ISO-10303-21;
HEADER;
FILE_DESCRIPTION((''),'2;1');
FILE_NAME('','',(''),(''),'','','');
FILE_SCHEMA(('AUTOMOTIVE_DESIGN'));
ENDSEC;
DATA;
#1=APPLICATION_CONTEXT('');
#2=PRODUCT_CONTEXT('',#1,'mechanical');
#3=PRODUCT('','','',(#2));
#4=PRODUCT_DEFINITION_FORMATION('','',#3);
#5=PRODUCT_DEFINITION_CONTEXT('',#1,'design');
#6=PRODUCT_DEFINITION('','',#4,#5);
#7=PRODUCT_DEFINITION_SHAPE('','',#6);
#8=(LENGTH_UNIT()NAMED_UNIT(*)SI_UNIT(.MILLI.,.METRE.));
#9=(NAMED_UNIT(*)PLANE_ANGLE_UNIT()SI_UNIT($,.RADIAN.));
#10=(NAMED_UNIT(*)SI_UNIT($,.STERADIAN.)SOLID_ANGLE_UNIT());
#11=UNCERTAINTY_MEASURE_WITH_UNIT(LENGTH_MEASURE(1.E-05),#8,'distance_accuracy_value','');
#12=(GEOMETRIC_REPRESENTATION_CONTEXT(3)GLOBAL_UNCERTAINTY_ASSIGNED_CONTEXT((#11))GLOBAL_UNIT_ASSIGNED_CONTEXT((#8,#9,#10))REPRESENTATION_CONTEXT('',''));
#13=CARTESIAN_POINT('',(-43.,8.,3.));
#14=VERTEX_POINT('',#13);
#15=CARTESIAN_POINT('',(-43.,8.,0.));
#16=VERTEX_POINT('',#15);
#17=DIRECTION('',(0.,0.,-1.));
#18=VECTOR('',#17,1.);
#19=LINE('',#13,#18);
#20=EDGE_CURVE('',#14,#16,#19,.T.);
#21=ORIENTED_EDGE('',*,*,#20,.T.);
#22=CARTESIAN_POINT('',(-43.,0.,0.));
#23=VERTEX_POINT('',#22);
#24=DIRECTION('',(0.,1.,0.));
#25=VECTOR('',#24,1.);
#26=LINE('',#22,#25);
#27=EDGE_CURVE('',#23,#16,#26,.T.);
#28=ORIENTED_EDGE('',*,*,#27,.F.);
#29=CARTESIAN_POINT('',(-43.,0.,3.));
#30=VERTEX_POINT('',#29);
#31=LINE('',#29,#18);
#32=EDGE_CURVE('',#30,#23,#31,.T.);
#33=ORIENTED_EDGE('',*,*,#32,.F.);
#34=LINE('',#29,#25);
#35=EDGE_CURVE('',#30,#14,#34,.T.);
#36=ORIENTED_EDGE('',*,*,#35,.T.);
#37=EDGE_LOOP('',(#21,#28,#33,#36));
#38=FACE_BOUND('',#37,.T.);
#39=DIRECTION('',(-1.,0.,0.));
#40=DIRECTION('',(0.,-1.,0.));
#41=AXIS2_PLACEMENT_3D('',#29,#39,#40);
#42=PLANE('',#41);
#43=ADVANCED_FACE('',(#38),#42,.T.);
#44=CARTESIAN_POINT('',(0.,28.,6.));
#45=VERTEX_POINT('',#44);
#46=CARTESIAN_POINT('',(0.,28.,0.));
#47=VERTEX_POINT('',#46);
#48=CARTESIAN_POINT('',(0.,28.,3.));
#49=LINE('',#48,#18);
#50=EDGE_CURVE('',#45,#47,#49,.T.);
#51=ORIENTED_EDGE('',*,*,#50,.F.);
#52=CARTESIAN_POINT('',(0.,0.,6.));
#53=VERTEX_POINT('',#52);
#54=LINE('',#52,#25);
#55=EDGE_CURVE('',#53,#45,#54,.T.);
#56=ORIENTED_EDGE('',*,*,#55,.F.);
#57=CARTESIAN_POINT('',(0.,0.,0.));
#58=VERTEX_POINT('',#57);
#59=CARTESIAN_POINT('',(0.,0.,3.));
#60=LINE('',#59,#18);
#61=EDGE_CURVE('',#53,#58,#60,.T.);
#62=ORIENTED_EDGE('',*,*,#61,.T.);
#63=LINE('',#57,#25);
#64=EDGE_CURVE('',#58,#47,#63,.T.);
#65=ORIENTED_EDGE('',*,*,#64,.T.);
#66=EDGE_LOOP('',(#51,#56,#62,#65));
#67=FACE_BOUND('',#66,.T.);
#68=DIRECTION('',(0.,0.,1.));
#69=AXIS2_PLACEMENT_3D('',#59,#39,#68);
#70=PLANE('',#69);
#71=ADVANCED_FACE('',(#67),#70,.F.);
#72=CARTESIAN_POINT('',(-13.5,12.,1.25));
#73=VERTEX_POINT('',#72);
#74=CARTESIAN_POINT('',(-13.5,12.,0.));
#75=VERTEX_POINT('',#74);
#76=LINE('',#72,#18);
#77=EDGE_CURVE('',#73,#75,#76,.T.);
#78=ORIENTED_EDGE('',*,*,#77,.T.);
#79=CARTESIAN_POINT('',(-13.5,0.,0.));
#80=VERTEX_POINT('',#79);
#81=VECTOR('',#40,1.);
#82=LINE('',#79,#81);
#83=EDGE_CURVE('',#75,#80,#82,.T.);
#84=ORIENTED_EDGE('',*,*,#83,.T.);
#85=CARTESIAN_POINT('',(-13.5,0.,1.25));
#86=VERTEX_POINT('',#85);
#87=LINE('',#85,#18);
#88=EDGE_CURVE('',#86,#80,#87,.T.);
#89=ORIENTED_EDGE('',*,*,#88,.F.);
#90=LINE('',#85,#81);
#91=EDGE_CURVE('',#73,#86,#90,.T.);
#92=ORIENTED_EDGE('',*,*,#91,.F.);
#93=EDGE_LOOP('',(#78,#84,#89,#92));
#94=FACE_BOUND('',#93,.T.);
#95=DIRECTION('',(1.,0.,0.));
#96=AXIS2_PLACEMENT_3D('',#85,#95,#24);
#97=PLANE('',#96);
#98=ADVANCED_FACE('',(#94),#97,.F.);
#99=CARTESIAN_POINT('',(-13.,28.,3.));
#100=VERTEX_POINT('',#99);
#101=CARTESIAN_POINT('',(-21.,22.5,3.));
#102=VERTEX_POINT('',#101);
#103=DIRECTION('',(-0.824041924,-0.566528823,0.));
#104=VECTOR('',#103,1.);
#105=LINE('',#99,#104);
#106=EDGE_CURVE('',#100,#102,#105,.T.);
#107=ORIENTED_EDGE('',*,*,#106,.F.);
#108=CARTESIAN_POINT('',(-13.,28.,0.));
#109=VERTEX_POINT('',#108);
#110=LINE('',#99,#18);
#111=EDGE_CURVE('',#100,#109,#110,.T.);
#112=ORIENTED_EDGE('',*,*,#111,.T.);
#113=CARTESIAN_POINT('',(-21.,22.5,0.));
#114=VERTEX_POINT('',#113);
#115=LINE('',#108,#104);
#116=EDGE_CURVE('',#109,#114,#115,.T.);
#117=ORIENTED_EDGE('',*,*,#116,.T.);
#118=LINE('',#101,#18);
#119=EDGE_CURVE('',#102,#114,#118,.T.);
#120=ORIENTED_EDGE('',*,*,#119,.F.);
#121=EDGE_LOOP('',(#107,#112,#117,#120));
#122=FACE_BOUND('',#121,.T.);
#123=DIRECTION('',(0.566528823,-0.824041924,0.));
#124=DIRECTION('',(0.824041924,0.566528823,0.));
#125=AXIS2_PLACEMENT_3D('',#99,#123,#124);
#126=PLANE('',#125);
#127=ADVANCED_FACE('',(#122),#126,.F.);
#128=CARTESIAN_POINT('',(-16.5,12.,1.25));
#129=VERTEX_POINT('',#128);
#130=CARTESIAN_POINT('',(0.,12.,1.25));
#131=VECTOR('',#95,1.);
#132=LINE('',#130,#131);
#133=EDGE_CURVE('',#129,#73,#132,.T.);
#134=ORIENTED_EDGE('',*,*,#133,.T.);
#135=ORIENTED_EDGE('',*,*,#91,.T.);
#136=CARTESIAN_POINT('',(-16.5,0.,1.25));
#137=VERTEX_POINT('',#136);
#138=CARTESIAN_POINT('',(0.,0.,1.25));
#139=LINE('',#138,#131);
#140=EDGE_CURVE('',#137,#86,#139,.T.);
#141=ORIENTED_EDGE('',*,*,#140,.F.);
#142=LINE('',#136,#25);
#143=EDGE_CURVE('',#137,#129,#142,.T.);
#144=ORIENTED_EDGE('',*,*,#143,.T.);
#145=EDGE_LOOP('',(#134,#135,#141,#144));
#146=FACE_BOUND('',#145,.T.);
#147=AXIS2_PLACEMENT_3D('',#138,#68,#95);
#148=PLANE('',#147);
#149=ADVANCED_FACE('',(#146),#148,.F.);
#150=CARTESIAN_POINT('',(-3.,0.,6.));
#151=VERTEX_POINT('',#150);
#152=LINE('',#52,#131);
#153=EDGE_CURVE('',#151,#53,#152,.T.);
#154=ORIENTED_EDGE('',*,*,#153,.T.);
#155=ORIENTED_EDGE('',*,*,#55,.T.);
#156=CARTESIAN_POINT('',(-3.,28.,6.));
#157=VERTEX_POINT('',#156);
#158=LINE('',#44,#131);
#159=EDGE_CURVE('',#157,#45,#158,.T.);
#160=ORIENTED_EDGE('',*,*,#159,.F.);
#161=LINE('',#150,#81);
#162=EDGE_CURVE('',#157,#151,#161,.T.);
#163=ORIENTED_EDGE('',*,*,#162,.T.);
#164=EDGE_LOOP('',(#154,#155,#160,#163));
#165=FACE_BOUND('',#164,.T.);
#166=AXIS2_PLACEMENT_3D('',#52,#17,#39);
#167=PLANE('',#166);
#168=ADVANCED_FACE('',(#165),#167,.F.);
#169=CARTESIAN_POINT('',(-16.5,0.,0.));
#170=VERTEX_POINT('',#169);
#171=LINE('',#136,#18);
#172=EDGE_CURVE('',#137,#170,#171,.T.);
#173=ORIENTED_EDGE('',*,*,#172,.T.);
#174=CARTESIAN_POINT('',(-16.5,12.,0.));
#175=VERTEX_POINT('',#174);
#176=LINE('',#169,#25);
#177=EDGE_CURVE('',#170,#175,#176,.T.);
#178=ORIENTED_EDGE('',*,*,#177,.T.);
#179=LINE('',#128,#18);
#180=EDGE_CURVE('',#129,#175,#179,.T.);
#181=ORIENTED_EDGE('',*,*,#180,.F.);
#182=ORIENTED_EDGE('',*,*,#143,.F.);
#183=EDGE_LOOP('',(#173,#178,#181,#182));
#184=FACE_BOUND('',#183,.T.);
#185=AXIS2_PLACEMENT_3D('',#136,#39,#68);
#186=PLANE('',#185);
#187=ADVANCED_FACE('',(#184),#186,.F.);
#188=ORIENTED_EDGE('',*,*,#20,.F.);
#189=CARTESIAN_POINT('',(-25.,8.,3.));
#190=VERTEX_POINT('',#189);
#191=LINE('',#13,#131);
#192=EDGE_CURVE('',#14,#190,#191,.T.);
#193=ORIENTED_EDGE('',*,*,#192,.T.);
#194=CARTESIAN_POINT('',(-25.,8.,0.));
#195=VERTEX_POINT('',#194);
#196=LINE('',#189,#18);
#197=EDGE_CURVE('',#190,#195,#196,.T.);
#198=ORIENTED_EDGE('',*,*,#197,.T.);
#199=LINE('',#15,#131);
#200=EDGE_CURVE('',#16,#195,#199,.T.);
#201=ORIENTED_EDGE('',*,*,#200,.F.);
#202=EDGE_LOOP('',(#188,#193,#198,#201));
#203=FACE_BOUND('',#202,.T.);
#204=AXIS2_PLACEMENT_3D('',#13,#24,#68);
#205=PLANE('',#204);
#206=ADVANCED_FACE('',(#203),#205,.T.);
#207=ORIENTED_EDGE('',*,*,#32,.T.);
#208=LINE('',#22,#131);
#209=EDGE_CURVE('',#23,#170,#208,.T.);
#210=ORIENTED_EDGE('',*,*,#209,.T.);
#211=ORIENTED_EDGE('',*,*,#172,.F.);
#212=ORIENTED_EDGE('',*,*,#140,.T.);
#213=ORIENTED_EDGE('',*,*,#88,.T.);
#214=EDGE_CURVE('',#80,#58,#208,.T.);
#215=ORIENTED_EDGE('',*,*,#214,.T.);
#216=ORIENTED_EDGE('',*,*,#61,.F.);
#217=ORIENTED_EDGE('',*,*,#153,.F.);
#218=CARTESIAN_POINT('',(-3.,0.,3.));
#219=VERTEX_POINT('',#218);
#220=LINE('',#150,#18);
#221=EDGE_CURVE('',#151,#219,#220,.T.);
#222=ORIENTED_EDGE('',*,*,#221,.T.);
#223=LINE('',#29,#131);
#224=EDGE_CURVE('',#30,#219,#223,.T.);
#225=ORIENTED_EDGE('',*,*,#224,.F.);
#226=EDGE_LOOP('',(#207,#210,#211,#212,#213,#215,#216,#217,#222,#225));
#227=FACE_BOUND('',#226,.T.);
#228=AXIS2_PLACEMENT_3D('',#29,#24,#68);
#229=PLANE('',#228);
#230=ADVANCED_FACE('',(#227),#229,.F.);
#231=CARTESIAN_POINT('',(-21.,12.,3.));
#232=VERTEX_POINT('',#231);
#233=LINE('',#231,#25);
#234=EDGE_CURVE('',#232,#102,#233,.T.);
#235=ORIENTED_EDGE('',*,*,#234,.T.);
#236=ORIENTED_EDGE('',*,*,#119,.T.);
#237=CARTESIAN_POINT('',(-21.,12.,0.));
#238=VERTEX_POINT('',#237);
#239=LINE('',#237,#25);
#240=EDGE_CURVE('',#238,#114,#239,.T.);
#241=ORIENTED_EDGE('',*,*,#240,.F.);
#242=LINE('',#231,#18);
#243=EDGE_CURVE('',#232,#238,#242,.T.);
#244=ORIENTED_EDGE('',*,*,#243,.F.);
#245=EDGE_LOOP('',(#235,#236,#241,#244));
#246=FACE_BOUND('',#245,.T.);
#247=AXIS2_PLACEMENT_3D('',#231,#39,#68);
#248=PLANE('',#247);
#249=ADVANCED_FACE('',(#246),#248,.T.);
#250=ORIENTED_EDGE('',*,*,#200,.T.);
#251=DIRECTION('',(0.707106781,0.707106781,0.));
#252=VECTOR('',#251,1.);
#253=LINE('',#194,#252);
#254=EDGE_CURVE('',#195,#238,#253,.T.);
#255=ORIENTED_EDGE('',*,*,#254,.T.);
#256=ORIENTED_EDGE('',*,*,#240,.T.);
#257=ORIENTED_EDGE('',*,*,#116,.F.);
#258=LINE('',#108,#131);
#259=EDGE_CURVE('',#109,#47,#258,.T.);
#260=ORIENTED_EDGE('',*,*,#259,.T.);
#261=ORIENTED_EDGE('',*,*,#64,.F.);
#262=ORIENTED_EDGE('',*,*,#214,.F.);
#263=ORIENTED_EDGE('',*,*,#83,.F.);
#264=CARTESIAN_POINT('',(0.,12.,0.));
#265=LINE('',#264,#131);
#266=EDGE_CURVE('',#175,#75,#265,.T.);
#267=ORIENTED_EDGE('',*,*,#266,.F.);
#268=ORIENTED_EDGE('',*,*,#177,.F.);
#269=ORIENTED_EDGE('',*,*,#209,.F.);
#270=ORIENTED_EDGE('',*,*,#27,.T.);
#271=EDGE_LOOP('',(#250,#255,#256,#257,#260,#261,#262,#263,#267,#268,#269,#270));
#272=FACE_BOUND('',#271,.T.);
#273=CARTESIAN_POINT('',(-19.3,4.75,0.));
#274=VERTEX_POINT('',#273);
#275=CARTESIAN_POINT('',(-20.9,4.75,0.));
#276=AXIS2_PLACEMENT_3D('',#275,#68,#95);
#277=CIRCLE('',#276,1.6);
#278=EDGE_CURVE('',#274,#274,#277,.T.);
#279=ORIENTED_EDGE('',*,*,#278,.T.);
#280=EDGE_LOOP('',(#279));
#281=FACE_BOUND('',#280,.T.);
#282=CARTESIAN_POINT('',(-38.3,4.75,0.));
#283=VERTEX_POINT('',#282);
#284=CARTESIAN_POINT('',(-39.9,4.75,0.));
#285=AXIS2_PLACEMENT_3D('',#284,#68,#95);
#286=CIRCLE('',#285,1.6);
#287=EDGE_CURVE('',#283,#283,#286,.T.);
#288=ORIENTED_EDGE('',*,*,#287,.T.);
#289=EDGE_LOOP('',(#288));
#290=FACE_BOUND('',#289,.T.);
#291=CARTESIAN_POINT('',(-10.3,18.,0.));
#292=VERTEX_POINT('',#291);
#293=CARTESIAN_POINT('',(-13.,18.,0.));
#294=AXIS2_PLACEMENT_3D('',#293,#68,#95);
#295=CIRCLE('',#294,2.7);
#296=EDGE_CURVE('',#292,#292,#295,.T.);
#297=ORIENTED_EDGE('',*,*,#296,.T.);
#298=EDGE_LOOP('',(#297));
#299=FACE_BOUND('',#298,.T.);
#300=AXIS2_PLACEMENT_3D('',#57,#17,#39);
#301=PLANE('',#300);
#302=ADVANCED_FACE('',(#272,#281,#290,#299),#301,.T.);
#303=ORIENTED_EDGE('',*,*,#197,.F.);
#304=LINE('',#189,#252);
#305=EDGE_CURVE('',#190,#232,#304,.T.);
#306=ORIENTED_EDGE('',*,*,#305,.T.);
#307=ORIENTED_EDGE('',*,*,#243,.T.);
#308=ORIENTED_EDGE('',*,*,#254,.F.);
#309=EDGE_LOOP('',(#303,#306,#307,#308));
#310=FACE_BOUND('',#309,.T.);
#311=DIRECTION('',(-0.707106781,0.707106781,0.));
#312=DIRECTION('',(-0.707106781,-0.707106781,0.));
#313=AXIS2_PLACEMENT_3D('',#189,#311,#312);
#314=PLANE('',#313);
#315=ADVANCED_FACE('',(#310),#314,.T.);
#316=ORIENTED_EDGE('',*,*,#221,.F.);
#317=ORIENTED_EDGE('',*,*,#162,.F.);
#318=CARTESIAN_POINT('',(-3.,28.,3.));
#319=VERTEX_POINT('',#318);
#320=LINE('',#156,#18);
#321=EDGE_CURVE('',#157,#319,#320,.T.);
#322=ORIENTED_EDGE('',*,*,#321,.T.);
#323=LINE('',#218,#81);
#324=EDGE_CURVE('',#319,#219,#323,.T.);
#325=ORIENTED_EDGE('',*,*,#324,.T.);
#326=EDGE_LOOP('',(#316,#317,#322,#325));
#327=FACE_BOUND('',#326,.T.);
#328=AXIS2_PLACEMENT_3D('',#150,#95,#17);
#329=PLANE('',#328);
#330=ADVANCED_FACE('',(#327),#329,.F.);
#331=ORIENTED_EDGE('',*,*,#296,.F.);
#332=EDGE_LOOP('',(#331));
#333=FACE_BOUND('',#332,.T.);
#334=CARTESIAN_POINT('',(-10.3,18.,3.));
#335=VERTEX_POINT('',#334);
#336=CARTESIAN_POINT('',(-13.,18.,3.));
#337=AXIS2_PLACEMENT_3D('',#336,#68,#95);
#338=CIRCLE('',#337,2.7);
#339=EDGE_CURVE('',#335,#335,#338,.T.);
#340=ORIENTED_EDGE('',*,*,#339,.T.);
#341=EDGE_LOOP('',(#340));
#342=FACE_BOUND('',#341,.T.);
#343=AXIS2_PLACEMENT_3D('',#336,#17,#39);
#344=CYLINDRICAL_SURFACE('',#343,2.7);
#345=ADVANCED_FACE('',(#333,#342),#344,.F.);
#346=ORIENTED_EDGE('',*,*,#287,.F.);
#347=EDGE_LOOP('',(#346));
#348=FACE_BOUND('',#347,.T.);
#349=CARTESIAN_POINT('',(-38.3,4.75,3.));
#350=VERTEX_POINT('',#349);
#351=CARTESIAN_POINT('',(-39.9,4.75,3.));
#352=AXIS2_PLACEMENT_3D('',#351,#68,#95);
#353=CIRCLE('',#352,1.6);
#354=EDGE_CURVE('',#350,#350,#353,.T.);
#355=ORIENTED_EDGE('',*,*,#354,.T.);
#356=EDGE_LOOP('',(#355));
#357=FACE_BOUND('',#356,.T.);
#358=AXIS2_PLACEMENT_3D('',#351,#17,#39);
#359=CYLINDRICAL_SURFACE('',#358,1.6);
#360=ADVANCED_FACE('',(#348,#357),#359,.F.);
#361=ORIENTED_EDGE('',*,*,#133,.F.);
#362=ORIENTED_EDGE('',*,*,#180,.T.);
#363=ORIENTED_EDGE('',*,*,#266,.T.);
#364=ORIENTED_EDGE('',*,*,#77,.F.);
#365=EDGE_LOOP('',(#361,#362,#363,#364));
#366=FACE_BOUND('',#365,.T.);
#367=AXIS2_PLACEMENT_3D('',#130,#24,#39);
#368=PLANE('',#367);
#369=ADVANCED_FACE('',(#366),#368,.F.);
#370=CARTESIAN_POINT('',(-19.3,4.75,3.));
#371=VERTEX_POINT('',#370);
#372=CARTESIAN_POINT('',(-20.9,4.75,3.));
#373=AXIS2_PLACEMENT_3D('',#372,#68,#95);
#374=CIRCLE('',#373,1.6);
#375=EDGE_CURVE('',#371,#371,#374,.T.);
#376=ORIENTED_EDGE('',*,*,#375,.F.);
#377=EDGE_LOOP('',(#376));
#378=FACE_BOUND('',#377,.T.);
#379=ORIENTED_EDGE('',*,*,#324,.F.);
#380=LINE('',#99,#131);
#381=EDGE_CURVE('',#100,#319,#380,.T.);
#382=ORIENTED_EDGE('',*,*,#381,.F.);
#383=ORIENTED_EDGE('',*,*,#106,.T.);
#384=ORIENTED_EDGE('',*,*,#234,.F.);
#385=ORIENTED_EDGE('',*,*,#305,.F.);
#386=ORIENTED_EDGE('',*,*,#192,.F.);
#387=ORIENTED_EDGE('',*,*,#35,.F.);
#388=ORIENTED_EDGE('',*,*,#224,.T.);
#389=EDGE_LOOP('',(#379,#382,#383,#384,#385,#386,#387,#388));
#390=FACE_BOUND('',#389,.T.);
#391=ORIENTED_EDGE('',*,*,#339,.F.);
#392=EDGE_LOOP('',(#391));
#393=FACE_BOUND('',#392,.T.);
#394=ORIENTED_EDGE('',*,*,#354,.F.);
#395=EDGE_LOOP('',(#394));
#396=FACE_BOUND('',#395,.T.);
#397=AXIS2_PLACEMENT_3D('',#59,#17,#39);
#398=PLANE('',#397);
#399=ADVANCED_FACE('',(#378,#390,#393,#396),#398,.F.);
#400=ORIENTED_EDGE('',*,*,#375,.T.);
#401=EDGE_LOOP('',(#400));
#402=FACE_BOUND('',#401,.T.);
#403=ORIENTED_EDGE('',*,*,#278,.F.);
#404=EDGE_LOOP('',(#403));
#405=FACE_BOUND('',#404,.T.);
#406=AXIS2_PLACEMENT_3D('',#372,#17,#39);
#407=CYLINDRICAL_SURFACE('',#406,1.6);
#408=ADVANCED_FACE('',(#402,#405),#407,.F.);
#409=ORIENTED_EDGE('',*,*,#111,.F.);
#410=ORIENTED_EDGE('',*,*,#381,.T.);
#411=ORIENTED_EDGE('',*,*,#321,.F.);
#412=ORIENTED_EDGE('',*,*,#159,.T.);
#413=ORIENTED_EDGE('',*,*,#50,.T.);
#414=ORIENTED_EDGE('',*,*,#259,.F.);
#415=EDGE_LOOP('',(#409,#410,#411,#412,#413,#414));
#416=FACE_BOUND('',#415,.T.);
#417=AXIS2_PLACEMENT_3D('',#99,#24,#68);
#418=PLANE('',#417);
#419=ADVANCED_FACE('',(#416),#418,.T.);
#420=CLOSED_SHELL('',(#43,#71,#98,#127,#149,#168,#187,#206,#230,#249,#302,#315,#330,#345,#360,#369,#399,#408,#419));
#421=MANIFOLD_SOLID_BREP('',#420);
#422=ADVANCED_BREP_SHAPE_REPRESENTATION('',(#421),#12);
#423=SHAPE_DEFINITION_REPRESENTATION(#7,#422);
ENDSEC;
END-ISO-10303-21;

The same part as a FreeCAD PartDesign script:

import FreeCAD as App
import Part
import Sketcher
Q = App.Units.Quantity

doc = App.newDocument("Part")
body = doc.addObject("PartDesign::Body", "Body")

sketch1 = body.newObject("Sketcher::SketchObject", "Sketch")
sketch1.AttachmentSupport = (doc.getObject("XY_Plane"), [""])
sketch1.MapMode = "FlatFace"
sketch1.addGeometry(Part.LineSegment(App.Vector(0, 0, 0), App.Vector(0, 28, 0)), False)
sketch1.addGeometry(Part.LineSegment(App.Vector(0, 28, 0), App.Vector(-13, 28, 0)), False)
sketch1.addGeometry(Part.LineSegment(App.Vector(-13, 28, 0), App.Vector(-21, 22.5, 0)), False)
sketch1.addGeometry(Part.LineSegment(App.Vector(-21, 22.5, 0), App.Vector(-21, 12, 0)), False)
sketch1.addGeometry(Part.LineSegment(App.Vector(-21, 12, 0), App.Vector(-25, 8, 0)), False)
sketch1.addGeometry(Part.LineSegment(App.Vector(-25, 8, 0), App.Vector(-43, 8, 0)), False)
sketch1.addGeometry(Part.LineSegment(App.Vector(-43, 8, 0), App.Vector(-43, 0, 0)), False)
sketch1.addGeometry(Part.LineSegment(App.Vector(-43, 0, 0), App.Vector(0, 0, 0)), False)
sketch1.addGeometry(Part.Circle(App.Vector(-39.9, 4.75, 0), App.Vector(0, 0, 1), 1.6), False)
sketch1.addGeometry(Part.Circle(App.Vector(-20.9, 4.75, 0), App.Vector(0, 0, 1), 1.6), False)
sketch1.addGeometry(Part.Circle(App.Vector(-13, 18, 0), App.Vector(0, 0, 1), 2.7), False)
sketch1.addConstraint(Sketcher.Constraint("Coincident", 0, 2, 1, 1))
sketch1.addConstraint(Sketcher.Constraint("Coincident", 1, 2, 2, 1))
sketch1.addConstraint(Sketcher.Constraint("Coincident", 2, 2, 3, 1))
sketch1.addConstraint(Sketcher.Constraint("Coincident", 3, 2, 4, 1))
sketch1.addConstraint(Sketcher.Constraint("Coincident", 4, 2, 5, 1))
sketch1.addConstraint(Sketcher.Constraint("Coincident", 5, 2, 6, 1))
sketch1.addConstraint(Sketcher.Constraint("Coincident", 6, 2, 7, 1))
sketch1.addConstraint(Sketcher.Constraint("Coincident", 7, 2, 0, 1))
sketch1.addConstraint(Sketcher.Constraint("Vertical", 0))
sketch1.addConstraint(Sketcher.Constraint("Horizontal", 1))
sketch1.addConstraint(Sketcher.Constraint("Vertical", 3))
sketch1.addConstraint(Sketcher.Constraint("Horizontal", 5))
sketch1.addConstraint(Sketcher.Constraint("Vertical", 6))
sketch1.addConstraint(Sketcher.Constraint("Horizontal", 7))
sketch1.addConstraint(Sketcher.Constraint("Coincident", 7, 2, -1, 1))
sketch1.addConstraint(Sketcher.Constraint("Equal", 8, 9))
sketch1.addConstraint(Sketcher.Constraint("Horizontal", 8, 3, 9, 3))
sketch1.addConstraint(Sketcher.Constraint("Vertical", 10, 3, 1, 2))
sketch1.addConstraint(Sketcher.Constraint("Diameter", 8, 3.2))
sketch1.addConstraint(Sketcher.Constraint("Diameter", 10, 5.4))
sketch1.addConstraint(Sketcher.Constraint("DistanceX", 1, 2, 1, 1, 13.0))
sketch1.addConstraint(Sketcher.Constraint("DistanceX", 5, 2, 5, 1, 18.0))
sketch1.addConstraint(Sketcher.Constraint("DistanceX", 7, 1, 7, 2, 43.0))
sketch1.addConstraint(Sketcher.Constraint("DistanceY", 0, 1, 0, 2, 28.0))
sketch1.addConstraint(Sketcher.Constraint("DistanceY", 6, 2, 6, 1, 8.0))
sketch1.addConstraint(Sketcher.Constraint("Angle", 4, Q("-135 deg")))
sketch1.addConstraint(Sketcher.Constraint("DistanceY", 3, 2, 3, 1, 10.5))
sketch1.addConstraint(Sketcher.Constraint("DistanceY", -1, 1, 10, 3, 18.0))
sketch1.addConstraint(Sketcher.Constraint("DistanceX", 2, 2, -1, 1, 21.0))
sketch1.addConstraint(Sketcher.Constraint("DistanceX", 8, 3, 9, 3, 19.0))
sketch1.addConstraint(Sketcher.Constraint("DistanceX", 8, 3, -1, 1, 39.9))
sketch1.addConstraint(Sketcher.Constraint("DistanceY", -1, 1, 8, 3, 4.75))
pad1 = body.newObject("PartDesign::Pad", "Pad")
pad1.Profile = sketch1
pad1.Length = 3

sketch2 = body.newObject("Sketcher::SketchObject", "Sketch001")
sketch2.AttachmentSupport = (doc.getObject("XY_Plane"), [""])
sketch2.MapMode = "FlatFace"
sketch2.AttachmentOffset = App.Placement(App.Vector(0, 0, 3), App.Rotation())
sketch2.addGeometry(Part.LineSegment(App.Vector(-3, 28, 0), App.Vector(-3, 0, 0)), False)
sketch2.addGeometry(Part.LineSegment(App.Vector(-3, 0, 0), App.Vector(0, 0, 0)), False)
sketch2.addGeometry(Part.LineSegment(App.Vector(0, 0, 0), App.Vector(0, 28, 0)), False)
sketch2.addGeometry(Part.LineSegment(App.Vector(0, 28, 0), App.Vector(-3, 28, 0)), False)
sketch2.addConstraint(Sketcher.Constraint("Coincident", 0, 2, 1, 1))
sketch2.addConstraint(Sketcher.Constraint("Coincident", 1, 2, 2, 1))
sketch2.addConstraint(Sketcher.Constraint("Coincident", 2, 2, 3, 1))
sketch2.addConstraint(Sketcher.Constraint("Coincident", 3, 2, 0, 1))
sketch2.addConstraint(Sketcher.Constraint("Vertical", 0))
sketch2.addConstraint(Sketcher.Constraint("Horizontal", 1))
sketch2.addConstraint(Sketcher.Constraint("Vertical", 2))
sketch2.addConstraint(Sketcher.Constraint("Horizontal", 3))
sketch2.addConstraint(Sketcher.Constraint("Coincident", 1, 2, -1, 1))
sketch2.addConstraint(Sketcher.Constraint("DistanceX", 1, 1, 1, 2, 3.0))
sketch2.addConstraint(Sketcher.Constraint("DistanceY", 0, 2, 0, 1, 28.0))
pad2 = body.newObject("PartDesign::Pad", "Pad001")
pad2.Profile = sketch2
pad2.Length = 3

sketch3 = body.newObject("Sketcher::SketchObject", "Sketch002")
sketch3.AttachmentSupport = (doc.getObject("XY_Plane"), [""])
sketch3.MapMode = "FlatFace"
sketch3.addGeometry(Part.LineSegment(App.Vector(-16.5, 12, 0), App.Vector(-16.5, 0, 0)), False)
sketch3.addGeometry(Part.LineSegment(App.Vector(-16.5, 0, 0), App.Vector(-13.5, 0, 0)), False)
sketch3.addGeometry(Part.LineSegment(App.Vector(-13.5, 0, 0), App.Vector(-13.5, 12, 0)), False)
sketch3.addGeometry(Part.LineSegment(App.Vector(-13.5, 12, 0), App.Vector(-16.5, 12, 0)), False)
sketch3.addConstraint(Sketcher.Constraint("Coincident", 0, 2, 1, 1))
sketch3.addConstraint(Sketcher.Constraint("Coincident", 1, 2, 2, 1))
sketch3.addConstraint(Sketcher.Constraint("Coincident", 2, 2, 3, 1))
sketch3.addConstraint(Sketcher.Constraint("Coincident", 3, 2, 0, 1))
sketch3.addConstraint(Sketcher.Constraint("Vertical", 0))
sketch3.addConstraint(Sketcher.Constraint("Horizontal", 1))
sketch3.addConstraint(Sketcher.Constraint("Vertical", 2))
sketch3.addConstraint(Sketcher.Constraint("Horizontal", 3))
sketch3.addConstraint(Sketcher.Constraint("PointOnObject", 0, 2, -1))
sketch3.addConstraint(Sketcher.Constraint("DistanceX", 1, 1, 1, 2, 3.0))
sketch3.addConstraint(Sketcher.Constraint("DistanceY", 0, 2, 0, 1, 12.0))
sketch3.addConstraint(Sketcher.Constraint("DistanceX", 0, 2, -1, 1, 16.5))
pocket1 = body.newObject("PartDesign::Pocket", "Pocket")
pocket1.Profile = sketch3
pocket1.Length = 1.25
pocket1.Reversed = True

doc.recompute()
